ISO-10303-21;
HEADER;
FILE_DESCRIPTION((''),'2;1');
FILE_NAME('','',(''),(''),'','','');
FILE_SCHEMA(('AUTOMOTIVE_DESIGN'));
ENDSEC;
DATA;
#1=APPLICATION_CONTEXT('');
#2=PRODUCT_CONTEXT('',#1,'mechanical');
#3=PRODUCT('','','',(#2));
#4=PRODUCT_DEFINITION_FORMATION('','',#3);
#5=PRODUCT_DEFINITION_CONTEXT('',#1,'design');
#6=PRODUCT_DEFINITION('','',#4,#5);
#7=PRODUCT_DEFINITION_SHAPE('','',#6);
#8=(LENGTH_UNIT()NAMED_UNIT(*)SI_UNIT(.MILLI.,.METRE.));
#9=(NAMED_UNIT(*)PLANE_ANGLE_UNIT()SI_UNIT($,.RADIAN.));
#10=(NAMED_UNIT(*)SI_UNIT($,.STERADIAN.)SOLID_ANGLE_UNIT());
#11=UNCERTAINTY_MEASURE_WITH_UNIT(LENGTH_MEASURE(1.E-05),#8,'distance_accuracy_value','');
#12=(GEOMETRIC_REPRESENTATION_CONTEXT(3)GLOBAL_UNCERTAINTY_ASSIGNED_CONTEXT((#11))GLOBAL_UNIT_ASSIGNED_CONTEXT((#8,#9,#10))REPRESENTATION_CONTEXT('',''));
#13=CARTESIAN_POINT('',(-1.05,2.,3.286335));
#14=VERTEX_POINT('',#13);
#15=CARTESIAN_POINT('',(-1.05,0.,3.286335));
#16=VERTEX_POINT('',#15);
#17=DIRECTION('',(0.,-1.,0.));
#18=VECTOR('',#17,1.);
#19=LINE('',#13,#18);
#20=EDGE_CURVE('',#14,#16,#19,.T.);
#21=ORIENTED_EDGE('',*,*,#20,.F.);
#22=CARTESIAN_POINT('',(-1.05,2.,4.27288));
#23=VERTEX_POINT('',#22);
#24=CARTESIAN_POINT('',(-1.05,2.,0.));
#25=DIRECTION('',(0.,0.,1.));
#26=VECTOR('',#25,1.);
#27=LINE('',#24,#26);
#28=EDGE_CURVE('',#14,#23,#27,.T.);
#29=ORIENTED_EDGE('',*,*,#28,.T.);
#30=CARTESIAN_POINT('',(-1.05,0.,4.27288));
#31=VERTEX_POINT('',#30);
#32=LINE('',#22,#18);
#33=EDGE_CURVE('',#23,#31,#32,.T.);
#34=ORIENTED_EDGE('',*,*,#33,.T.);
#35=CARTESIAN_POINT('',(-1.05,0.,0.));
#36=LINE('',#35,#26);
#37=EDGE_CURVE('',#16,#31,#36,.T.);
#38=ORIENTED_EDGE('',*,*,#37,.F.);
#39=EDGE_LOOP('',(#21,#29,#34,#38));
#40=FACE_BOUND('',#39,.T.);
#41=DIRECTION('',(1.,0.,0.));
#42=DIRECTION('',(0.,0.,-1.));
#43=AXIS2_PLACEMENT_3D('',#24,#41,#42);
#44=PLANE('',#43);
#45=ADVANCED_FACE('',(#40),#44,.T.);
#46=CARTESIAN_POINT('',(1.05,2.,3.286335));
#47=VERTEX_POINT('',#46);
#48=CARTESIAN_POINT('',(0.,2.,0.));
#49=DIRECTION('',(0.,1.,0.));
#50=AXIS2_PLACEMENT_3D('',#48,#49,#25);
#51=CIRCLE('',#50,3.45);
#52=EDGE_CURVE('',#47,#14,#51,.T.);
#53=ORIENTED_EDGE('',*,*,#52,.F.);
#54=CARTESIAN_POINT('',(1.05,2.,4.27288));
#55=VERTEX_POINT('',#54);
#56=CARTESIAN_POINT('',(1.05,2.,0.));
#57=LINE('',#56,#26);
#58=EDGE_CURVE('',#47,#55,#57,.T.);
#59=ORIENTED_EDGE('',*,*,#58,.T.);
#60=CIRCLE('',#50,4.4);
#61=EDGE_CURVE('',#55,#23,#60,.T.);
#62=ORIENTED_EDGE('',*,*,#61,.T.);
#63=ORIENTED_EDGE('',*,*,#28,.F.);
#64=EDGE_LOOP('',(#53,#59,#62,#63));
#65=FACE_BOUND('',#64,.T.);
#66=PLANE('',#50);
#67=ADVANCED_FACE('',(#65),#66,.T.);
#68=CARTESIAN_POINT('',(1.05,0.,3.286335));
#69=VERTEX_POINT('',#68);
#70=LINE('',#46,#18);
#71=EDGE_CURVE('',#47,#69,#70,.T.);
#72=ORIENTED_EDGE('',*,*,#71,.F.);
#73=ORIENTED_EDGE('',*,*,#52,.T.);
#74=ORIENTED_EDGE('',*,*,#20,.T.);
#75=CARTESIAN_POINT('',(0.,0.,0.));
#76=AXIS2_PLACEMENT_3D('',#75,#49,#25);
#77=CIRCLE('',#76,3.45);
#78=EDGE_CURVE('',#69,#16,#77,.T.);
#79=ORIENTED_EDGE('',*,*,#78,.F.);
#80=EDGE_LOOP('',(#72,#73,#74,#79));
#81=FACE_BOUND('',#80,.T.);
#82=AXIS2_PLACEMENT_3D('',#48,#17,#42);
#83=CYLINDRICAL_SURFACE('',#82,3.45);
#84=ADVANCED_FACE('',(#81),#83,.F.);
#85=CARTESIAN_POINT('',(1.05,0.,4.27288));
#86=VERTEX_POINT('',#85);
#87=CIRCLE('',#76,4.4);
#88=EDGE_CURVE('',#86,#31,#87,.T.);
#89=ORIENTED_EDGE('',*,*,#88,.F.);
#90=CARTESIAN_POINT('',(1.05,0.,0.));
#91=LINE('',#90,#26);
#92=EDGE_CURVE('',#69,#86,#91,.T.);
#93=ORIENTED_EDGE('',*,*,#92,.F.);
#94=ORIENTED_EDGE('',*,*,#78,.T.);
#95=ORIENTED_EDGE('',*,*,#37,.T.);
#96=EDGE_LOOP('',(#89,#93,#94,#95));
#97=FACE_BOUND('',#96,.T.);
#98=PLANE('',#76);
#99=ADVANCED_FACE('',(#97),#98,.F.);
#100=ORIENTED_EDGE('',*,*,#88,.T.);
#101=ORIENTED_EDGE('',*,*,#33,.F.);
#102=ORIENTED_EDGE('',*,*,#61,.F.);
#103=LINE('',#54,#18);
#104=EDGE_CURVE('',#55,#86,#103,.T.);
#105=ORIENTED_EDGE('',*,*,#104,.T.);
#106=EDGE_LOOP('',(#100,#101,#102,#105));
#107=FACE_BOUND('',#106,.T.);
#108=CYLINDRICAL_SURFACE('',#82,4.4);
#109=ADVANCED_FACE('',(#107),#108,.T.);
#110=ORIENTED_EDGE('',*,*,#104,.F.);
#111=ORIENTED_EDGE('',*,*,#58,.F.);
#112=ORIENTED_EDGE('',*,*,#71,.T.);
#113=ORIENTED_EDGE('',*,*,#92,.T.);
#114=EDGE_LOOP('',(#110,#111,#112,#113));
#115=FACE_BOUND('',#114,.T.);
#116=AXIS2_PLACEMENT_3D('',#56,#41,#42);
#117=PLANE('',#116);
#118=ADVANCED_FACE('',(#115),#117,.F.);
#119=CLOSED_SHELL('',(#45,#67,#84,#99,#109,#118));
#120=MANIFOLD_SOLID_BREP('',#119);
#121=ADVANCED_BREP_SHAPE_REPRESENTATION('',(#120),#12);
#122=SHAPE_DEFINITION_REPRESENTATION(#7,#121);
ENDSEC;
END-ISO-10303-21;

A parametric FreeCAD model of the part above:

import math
import FreeCAD as App
import Part
import Sketcher
from FreeCAD import Vector
Q = App.Units.Quantity

doc = App.newDocument("Part")
params = doc.addObject("Spreadsheet::Sheet", "Params")
for row, (alias, value) in enumerate([
    ("sketch1_radius", "4.4 mm"),
    ("sketch1_radius2", "3.45 mm"),
    ("pad1_length", "2 mm"),
], start=1):
    params.set(f"A{row}", alias)
    params.set(f"B{row}", "=" + value)
    params.setAlias(f"B{row}", alias)

body = doc.addObject("PartDesign::Body", "Body")

# Sketch on XZ plane
sketch1 = body.newObject("Sketcher::SketchObject", "Sketch")
sketch1.AttachmentSupport = (doc.getObject("XZ_Plane"), [""])
sketch1.MapMode = "FlatFace"
sketch1.addGeometry([
    Part.LineSegment(Vector(-1.1, 4.3, 0), Vector(-1.1, 3.3, 0)),  # 0
    Part.ArcOfCircle(Part.Circle(Vector(0, 0, 0), Vector(0, 0, 1), 3.5), math.radians(108), math.radians(360)),  # 1
    Part.ArcOfCircle(Part.Circle(Vector(0, 0, 0), Vector(0, 0, 1), 3.5), math.radians(0), math.radians(72)),  # 2
    Part.LineSegment(Vector(1.1, 3.3, 0), Vector(1.1, 4.3, 0)),  # 3
    Part.ArcOfCircle(Part.Circle(Vector(0, 0, 0), Vector(0, 0, 1), 4.4), math.radians(0), math.radians(76)),  # 4
    Part.ArcOfCircle(Part.Circle(Vector(0, 0, 0), Vector(0, 0, 1), 4.4), math.radians(104), math.radians(360)),  # 5
], False)
sketch1.addConstraint([
    Sketcher.Constraint("Coincident", 0, 2, 1, 1),
    Sketcher.Constraint("Tangent", 1, 2, 2, 1),
    Sketcher.Constraint("Coincident", 2, 2, 3, 1),
    Sketcher.Constraint("Coincident", 3, 2, 4, 2),
    Sketcher.Constraint("Tangent", 4, 1, 5, 2),
    Sketcher.Constraint("Coincident", 5, 1, 0, 1),
    Sketcher.Constraint("Vertical", 0),
    Sketcher.Constraint("Vertical", 3),
    Sketcher.Constraint("Coincident", 1, 3, -1, 1),
    Sketcher.Constraint("Coincident", 4, 3, -1, 1),
    Sketcher.Constraint("Equal", 1, 2),
    Sketcher.Constraint("Equal", 4, 5),
    Sketcher.Constraint("PointOnObject", 1, 2, -1),
    Sketcher.Constraint("PointOnObject", 4, 1, -1),
    Sketcher.Constraint("Horizontal", 0, 2, 2, 2),
    Sketcher.Constraint("Radius", 4, Q("4.4 mm")),
    Sketcher.Constraint("Radius", 1, Q("3.45 mm")),
    Sketcher.Constraint("DistanceX", 0, 2, 1, 2, Q("4.5 mm")),
])
sketch1.setExpression("Constraints[15]", "Params.sketch1_radius")
sketch1.setExpression("Constraints[16]", "Params.sketch1_radius2")
pad1 = body.newObject("PartDesign::Pad", "Pad")
pad1.Profile = sketch1
pad1.setExpression("Length", "Params.pad1_length")
pad1.Reversed = True

doc.recompute()
